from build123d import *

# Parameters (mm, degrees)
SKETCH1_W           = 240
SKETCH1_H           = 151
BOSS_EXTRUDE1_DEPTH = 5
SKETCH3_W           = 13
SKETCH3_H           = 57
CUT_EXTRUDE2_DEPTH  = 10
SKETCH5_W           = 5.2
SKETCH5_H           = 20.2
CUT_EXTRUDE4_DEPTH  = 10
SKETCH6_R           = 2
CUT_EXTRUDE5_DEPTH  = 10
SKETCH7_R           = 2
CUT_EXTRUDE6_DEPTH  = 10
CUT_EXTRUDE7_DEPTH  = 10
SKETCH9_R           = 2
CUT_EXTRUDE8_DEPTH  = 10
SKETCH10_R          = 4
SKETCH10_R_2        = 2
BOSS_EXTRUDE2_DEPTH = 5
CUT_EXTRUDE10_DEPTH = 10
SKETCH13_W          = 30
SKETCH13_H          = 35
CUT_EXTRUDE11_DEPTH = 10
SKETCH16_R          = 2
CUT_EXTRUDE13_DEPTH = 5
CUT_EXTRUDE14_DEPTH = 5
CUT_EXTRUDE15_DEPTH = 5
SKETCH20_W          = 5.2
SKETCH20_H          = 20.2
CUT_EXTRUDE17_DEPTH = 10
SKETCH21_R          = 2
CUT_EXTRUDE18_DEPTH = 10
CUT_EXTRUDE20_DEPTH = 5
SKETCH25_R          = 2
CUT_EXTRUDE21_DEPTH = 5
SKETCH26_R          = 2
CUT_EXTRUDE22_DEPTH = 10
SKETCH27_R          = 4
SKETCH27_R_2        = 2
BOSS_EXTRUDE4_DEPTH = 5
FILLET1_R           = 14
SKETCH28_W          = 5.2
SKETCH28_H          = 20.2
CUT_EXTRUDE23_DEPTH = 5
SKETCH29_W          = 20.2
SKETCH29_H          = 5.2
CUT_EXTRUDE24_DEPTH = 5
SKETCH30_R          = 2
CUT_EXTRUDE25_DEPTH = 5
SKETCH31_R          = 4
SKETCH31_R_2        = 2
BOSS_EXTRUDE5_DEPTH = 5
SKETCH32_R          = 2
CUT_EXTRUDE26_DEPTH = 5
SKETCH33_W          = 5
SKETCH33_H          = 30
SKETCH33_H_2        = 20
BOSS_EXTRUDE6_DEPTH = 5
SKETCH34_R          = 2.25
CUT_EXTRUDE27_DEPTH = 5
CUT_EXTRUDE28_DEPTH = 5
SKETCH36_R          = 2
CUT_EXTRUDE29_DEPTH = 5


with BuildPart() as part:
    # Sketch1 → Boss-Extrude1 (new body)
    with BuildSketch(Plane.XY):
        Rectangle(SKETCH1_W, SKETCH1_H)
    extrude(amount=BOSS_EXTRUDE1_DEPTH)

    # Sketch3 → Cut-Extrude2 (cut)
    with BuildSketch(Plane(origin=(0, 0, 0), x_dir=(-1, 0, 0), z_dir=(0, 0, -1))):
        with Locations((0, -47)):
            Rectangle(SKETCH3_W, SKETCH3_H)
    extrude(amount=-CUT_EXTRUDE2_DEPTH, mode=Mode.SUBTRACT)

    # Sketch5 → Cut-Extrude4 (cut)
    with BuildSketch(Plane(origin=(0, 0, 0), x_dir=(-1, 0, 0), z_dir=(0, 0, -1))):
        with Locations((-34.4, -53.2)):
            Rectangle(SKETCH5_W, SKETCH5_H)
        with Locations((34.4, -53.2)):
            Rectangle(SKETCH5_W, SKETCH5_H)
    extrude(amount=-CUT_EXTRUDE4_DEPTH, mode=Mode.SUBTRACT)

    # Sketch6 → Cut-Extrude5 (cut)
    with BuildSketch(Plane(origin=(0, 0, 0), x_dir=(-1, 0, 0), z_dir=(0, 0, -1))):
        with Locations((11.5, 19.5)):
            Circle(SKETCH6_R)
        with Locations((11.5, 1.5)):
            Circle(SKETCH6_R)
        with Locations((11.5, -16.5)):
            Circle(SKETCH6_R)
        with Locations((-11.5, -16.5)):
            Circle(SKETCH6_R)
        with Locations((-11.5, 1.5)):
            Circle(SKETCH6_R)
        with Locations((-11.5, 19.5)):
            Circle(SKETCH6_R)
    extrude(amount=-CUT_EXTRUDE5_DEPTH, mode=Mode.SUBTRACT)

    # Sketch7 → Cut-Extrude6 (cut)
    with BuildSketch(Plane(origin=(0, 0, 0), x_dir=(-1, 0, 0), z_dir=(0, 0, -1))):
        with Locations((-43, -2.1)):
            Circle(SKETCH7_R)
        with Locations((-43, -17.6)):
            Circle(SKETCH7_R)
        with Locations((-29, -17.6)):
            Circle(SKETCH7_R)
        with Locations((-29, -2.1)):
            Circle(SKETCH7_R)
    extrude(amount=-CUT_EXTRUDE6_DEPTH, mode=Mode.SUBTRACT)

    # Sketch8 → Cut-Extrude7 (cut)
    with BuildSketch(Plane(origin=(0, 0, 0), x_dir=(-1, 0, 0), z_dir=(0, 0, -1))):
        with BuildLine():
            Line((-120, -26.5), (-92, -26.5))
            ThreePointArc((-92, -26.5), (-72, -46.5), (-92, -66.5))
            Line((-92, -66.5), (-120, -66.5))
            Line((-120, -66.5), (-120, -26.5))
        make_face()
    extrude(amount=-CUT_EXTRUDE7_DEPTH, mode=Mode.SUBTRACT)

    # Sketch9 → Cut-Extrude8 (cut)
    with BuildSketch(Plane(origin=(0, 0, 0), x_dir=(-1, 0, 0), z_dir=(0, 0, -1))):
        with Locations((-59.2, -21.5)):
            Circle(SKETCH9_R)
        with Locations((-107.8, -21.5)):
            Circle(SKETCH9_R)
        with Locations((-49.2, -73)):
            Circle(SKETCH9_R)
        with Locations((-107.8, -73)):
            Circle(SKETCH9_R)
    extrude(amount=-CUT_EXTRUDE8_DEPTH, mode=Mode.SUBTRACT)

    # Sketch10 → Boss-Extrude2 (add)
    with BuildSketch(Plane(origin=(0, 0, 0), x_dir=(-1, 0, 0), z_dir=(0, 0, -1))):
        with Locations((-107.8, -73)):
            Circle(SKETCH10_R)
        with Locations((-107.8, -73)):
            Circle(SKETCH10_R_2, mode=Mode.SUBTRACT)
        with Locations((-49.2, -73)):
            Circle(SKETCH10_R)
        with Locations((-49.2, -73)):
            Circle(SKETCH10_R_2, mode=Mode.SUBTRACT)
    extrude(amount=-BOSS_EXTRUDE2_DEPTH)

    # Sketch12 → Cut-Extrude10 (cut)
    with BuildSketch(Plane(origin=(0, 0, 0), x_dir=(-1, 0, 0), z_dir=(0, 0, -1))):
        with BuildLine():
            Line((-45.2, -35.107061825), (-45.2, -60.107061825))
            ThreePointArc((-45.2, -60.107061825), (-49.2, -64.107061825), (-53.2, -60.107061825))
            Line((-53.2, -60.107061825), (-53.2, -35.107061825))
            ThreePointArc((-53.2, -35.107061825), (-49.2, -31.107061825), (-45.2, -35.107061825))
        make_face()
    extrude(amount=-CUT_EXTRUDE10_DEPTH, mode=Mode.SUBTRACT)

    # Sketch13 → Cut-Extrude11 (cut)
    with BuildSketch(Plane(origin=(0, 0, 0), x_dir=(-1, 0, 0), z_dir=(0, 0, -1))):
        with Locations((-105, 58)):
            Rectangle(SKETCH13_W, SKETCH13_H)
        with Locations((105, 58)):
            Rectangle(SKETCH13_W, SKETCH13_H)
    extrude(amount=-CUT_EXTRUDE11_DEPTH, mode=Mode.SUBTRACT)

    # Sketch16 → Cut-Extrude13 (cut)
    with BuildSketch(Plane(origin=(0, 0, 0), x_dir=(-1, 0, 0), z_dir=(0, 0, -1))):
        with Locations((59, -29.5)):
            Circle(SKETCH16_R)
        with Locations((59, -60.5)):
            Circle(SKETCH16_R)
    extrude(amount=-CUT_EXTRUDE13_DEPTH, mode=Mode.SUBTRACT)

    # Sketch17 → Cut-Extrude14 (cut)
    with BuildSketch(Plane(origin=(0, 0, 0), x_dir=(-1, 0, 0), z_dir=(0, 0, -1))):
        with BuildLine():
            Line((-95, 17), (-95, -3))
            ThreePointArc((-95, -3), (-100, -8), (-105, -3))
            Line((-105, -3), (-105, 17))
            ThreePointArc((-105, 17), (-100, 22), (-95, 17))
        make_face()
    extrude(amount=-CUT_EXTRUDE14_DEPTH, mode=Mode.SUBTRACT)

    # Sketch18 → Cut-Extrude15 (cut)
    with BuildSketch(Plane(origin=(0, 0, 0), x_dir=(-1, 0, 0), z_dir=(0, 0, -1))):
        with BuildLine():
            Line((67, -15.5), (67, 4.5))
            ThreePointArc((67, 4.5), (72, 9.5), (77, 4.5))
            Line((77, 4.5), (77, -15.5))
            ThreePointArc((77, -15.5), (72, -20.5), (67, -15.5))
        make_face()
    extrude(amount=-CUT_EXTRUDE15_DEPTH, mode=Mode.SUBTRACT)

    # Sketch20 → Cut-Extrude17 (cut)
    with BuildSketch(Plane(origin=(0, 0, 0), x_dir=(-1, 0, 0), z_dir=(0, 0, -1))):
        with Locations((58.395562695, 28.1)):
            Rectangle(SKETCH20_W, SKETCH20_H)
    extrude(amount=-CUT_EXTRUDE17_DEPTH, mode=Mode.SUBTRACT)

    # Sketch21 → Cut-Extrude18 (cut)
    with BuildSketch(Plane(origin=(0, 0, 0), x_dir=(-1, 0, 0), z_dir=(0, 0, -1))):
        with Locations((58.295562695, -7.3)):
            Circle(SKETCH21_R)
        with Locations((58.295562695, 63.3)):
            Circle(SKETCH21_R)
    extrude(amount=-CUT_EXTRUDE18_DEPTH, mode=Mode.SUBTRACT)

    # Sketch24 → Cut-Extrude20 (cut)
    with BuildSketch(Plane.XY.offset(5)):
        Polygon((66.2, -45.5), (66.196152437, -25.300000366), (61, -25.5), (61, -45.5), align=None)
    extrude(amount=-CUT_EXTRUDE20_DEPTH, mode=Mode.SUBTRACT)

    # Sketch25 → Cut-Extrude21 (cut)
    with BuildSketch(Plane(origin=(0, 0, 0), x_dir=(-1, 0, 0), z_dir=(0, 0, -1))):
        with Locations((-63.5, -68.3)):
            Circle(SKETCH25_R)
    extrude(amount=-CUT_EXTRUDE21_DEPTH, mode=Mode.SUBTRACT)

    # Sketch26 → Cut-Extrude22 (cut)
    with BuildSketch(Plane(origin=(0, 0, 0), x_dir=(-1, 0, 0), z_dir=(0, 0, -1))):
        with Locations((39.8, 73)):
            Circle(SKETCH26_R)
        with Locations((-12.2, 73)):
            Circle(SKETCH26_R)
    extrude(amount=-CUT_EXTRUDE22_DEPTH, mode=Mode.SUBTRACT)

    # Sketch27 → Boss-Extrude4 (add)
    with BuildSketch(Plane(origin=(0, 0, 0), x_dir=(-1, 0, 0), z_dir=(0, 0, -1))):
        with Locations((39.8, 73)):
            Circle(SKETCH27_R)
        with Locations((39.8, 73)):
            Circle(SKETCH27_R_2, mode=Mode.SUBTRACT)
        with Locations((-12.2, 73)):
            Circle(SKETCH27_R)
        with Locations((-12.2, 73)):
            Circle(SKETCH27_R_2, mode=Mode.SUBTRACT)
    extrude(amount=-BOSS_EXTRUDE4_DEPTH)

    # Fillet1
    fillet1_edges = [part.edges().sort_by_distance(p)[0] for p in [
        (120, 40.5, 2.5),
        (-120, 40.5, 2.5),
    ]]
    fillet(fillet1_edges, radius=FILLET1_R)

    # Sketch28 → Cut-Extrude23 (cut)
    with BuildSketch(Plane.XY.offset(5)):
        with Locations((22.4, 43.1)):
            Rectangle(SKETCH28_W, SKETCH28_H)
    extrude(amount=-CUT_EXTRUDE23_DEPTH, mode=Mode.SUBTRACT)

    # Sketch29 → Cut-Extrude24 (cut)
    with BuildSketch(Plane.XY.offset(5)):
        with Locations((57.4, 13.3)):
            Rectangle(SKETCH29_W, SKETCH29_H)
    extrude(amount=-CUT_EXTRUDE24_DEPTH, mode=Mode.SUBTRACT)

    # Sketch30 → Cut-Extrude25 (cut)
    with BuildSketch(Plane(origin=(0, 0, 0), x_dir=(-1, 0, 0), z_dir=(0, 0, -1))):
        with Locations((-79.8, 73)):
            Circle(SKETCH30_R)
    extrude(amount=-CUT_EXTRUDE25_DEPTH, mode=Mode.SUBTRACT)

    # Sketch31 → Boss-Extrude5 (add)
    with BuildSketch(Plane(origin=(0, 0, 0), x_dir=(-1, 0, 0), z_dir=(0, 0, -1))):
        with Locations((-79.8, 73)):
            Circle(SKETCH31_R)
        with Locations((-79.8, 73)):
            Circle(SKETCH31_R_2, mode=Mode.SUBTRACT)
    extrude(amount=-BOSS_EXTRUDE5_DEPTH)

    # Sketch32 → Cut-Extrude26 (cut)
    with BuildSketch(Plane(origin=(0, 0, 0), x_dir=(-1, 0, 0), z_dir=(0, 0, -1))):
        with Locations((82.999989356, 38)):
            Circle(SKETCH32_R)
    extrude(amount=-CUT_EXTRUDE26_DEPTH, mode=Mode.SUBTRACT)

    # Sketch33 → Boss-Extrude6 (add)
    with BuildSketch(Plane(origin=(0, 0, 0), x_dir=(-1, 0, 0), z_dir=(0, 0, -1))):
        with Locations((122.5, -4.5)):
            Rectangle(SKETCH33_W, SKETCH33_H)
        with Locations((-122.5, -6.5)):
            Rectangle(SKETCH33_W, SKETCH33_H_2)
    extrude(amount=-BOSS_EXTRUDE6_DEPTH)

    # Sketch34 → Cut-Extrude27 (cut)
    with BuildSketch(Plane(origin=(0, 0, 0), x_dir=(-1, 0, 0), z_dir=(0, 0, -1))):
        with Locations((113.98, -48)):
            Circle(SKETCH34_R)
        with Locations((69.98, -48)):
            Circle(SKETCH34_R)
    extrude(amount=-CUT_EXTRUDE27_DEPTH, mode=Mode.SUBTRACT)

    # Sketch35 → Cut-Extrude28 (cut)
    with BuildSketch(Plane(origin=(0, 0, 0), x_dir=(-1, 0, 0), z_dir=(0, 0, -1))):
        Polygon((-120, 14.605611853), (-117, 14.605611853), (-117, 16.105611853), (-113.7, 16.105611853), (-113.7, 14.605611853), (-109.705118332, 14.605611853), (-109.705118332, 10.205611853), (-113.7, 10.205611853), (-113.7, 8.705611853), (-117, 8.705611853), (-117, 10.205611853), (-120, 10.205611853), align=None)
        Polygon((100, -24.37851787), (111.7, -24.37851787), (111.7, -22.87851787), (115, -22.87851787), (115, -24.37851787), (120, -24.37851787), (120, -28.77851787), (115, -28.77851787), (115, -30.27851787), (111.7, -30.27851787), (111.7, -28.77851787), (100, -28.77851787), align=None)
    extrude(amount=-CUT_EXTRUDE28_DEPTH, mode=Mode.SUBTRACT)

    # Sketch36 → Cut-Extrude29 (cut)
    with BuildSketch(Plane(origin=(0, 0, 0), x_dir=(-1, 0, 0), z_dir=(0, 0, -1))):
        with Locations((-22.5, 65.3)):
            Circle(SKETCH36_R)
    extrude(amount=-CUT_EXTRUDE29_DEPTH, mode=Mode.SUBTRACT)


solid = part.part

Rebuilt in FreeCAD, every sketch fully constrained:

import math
import FreeCAD as App
import Part
import Sketcher

V = App.Vector
Q = App.Units.Quantity


def edges_at(feature, points):
    """Names of the edges that pass closest to the given points."""
    edges = feature.Shape.Edges
    near = lambda p: min(range(len(edges)), key=lambda i: edges[i].distToShape(Part.Vertex(*p))[0])
    return sorted({f"Edge{near(p) + 1}" for p in points})


def add_polygon(sketch, points):
    """Adds a closed chain of lines whose ends are joined by coincident constraints."""
    first, n = sketch.GeometryCount, len(points)
    for a, b in zip(points, points[1:] + points[:1]):
        sketch.addGeometry(Part.LineSegment(App.Vector(*a, 0), App.Vector(*b, 0)), False)
    for i in range(n):
        sketch.addConstraint(Sketcher.Constraint("Coincident", first + i, 2, first + (i + 1) % n, 1))

doc = App.newDocument("Part")
body = doc.addObject("PartDesign::Body", "Body")

sketch1 = body.newObject("Sketcher::SketchObject", "Sketch")
sketch1.AttachmentSupport = (doc.getObject("XY_Plane"), [""])
sketch1.MapMode = "FlatFace"
add_polygon(sketch1, [(-120, 76), (-120, -76), (120, -76), (120, 76)])
sketch1.addConstraint(Sketcher.Constraint("Vertical", 0))
sketch1.addConstraint(Sketcher.Constraint("Horizontal", 1))
sketch1.addConstraint(Sketcher.Constraint("Vertical", 2))
sketch1.addConstraint(Sketcher.Constraint("Horizontal", 3))
sketch1.addConstraint(Sketcher.Constraint("Symmetric", 0, 2, 2, 2, -1, 1))
sketch1.addConstraint(Sketcher.Constraint("DistanceX", 1, 1, 1, 2, Q("240 mm")))
sketch1.addConstraint(Sketcher.Constraint("DistanceY", 0, 2, 0, 1, Q("151 mm")))
pad1 = body.newObject("PartDesign::Pad", "Pad")
pad1.Profile = sketch1
pad1.Length = 5

sketch2 = body.newObject("Sketcher::SketchObject", "Sketch001")
sketch2.AttachmentSupport = (doc.getObject("XY_Plane"), [""])
sketch2.MapMode = "FlatFace"
add_polygon(sketch2, [(6, -18), (6, -76), (-6, -76), (-6, -18)])
sketch2.addConstraint(Sketcher.Constraint("Vertical", 0))
sketch2.addConstraint(Sketcher.Constraint("Horizontal", 1))
sketch2.addConstraint(Sketcher.Constraint("Vertical", 2))
sketch2.addConstraint(Sketcher.Constraint("Horizontal", 3))
sketch2.addConstraint(Sketcher.Constraint("DistanceX", 1, 2, 1, 1, Q("13 mm")))
sketch2.addConstraint(Sketcher.Constraint("DistanceY", 0, 2, 0, 1, Q("57 mm")))
sketch2.addConstraint(Sketcher.Constraint("DistanceX", -1, 1, 0, 2, Q("6.5 mm")))
sketch2.addConstraint(Sketcher.Constraint("DistanceY", 0, 2, -1, 1, Q("75.5 mm")))
pocket1 = body.newObject("PartDesign::Pocket", "Pocket")
pocket1.Profile = sketch2
pocket1.Length = 10
pocket1.Reversed = True

sketch3 = body.newObject("Sketcher::SketchObject", "Sketch002")
sketch3.AttachmentSupport = (doc.getObject("XY_Plane"), [""])
sketch3.MapMode = "FlatFace"
add_polygon(sketch3, [(37, -43), (37, -63), (32, -63), (32, -43)])
add_polygon(sketch3, [(-32, -43), (-32, -63), (-37, -63), (-37, -43)])
sketch3.addConstraint(Sketcher.Constraint("Vertical", 0))
sketch3.addConstraint(Sketcher.Constraint("Horizontal", 1))
sketch3.addConstraint(Sketcher.Constraint("Vertical", 2))
sketch3.addConstraint(Sketcher.Constraint("Horizontal", 3))
sketch3.addConstraint(Sketcher.Constraint("Vertical", 4))
sketch3.addConstraint(Sketcher.Constraint("Horizontal", 5))
sketch3.addConstraint(Sketcher.Constraint("Vertical", 6))
sketch3.addConstraint(Sketcher.Constraint("Horizontal", 7))
sketch3.addConstraint(Sketcher.Constraint("Symmetric", 1, 2, 4, 2, -2))
sketch3.addConstraint(Sketcher.Constraint("Symmetric", 3, 2, 6, 2, -2))
sketch3.addConstraint(Sketcher.Constraint("DistanceX", 1, 2, 1, 1, Q("5.2 mm")))
sketch3.addConstraint(Sketcher.Constraint("DistanceY", 0, 2, 0, 1, Q("20.2 mm")))
sketch3.addConstraint(Sketcher.Constraint("DistanceX", -1, 1, 0, 2, Q("37 mm")))
sketch3.addConstraint(Sketcher.Constraint("DistanceY", 0, 2, -1, 1, Q("63.3 mm")))
pocket2 = body.newObject("PartDesign::Pocket", "Pocket001")
pocket2.Profile = sketch3
pocket2.Length = 10
pocket2.Reversed = True

sketch4 = body.newObject("Sketcher::SketchObject", "Sketch003")
sketch4.AttachmentSupport = (doc.getObject("XY_Plane"), [""])
sketch4.MapMode = "FlatFace"
sketch4.addGeometry(Part.Circle(V(-11.5, 19.5, 0), V(0, 0, 1), 2), False)
sketch4.addGeometry(Part.Circle(V(-11.5, 1.5, 0), V(0, 0, 1), 2), False)
sketch4.addGeometry(Part.Circle(V(-11.5, -16.5, 0), V(0, 0, 1), 2), False)
sketch4.addGeometry(Part.Circle(V(11.5, -16.5, 0), V(0, 0, 1), 2), False)
sketch4.addGeometry(Part.Circle(V(11.5, 1.5, 0), V(0, 0, 1), 2), False)
sketch4.addGeometry(Part.Circle(V(11.5, 19.5, 0), V(0, 0, 1), 2), False)
sketch4.addConstraint(Sketcher.Constraint("Equal", 0, 1))
sketch4.addConstraint(Sketcher.Constraint("Equal", 1, 2))
sketch4.addConstraint(Sketcher.Constraint("Equal", 2, 3))
sketch4.addConstraint(Sketcher.Constraint("Equal", 3, 4))
sketch4.addConstraint(Sketcher.Constraint("Equal", 4, 5))
sketch4.addConstraint(Sketcher.Constraint("Symmetric", 2, 3, 3, 3, -2))
sketch4.addConstraint(Sketcher.Constraint("Symmetric", 1, 3, 4, 3, -2))
sketch4.addConstraint(Sketcher.Constraint("Symmetric", 0, 3, 5, 3, -2))
sketch4.addConstraint(Sketcher.Constraint("Vertical", 0, 3, 1, 3))
sketch4.addConstraint(Sketcher.Constraint("Vertical", 1, 3, 2, 3))
sketch4.addConstraint(Sketcher.Constraint("Diameter", 0, Q("4 mm")))
sketch4.addConstraint(Sketcher.Constraint("DistanceY", 1, 3, 0, 3, Q("18 mm")))
sketch4.addConstraint(Sketcher.Constraint("DistanceY", 2, 3, 1, 3, Q("18 mm")))
sketch4.addConstraint(Sketcher.Constraint("DistanceX", 2, 3, 3, 3, Q("23 mm")))
sketch4.addConstraint(Sketcher.Constraint("DistanceY", -1, 1, 0, 3, Q("19.5 mm")))
pocket3 = body.newObject("PartDesign::Pocket", "Pocket002")
pocket3.Profile = sketch4
pocket3.Length = 10
pocket3.Reversed = True

sketch5 = body.newObject("Sketcher::SketchObject", "Sketch004")
sketch5.AttachmentSupport = (doc.getObject("XY_Plane"), [""])
sketch5.MapMode = "FlatFace"
sketch5.addGeometry(Part.Circle(V(43, -2.1, 0), V(0, 0, 1), 2), False)
sketch5.addGeometry(Part.Circle(V(43, -17.6, 0), V(0, 0, 1), 2), False)
sketch5.addGeometry(Part.Circle(V(29, -17.6, 0), V(0, 0, 1), 2), False)
sketch5.addGeometry(Part.Circle(V(29, -2.1, 0), V(0, 0, 1), 2), False)
sketch5.addConstraint(Sketcher.Constraint("Equal", 0, 1))
sketch5.addConstraint(Sketcher.Constraint("Equal", 1, 2))
sketch5.addConstraint(Sketcher.Constraint("Equal", 2, 3))
sketch5.addConstraint(Sketcher.Constraint("Horizontal", 1, 3, 2, 3))
sketch5.addConstraint(Sketcher.Constraint("Horizontal", 0, 3, 3, 3))
sketch5.addConstraint(Sketcher.Constraint("Vertical", 0, 3, 1, 3))
sketch5.addConstraint(Sketcher.Constraint("Vertical", 2, 3, 3, 3))
sketch5.addConstraint(Sketcher.Constraint("Diameter", 0, Q("4 mm")))
sketch5.addConstraint(Sketcher.Constraint("DistanceX", -1, 1, 0, 3, Q("43 mm")))
sketch5.addConstraint(Sketcher.Constraint("DistanceX", -1, 1, 2, 3, Q("29 mm")))
sketch5.addConstraint(Sketcher.Constraint("DistanceY", 0, 3, -1, 1, Q("2.1 mm")))
sketch5.addConstraint(Sketcher.Constraint("DistanceY", 1, 3, -1, 1, Q("17.6 mm")))
pocket4 = body.newObject("PartDesign::Pocket", "Pocket003")
pocket4.Profile = sketch5
pocket4.Length = 10
pocket4.Reversed = True

sketch6 = body.newObject("Sketcher::SketchObject", "Sketch005")
sketch6.AttachmentSupport = (doc.getObject("XY_Plane"), [""])
sketch6.MapMode = "FlatFace"
sketch6.addGeometry(Part.LineSegment(V(92, -26, 0), V(120, -26, 0)), False)
sketch6.addGeometry(Part.LineSegment(V(120, -26, 0), V(120, -66, 0)), False)
sketch6.addGeometry(Part.LineSegment(V(120, -66, 0), V(92, -66, 0)), False)
sketch6.addGeometry(Part.ArcOfCircle(Part.Circle(V(92, -46, 0), V(0, 0, 1), 20), math.radians(90), math.radians(270)), False)
sketch6.addConstraint(Sketcher.Constraint("Coincident", 0, 2, 1, 1))
sketch6.addConstraint(Sketcher.Constraint("Coincident", 1, 2, 2, 1))
sketch6.addConstraint(Sketcher.Constraint("Tangent", 2, 2, 3, 2))
sketch6.addConstraint(Sketcher.Constraint("Tangent", 3, 1, 0, 1))
sketch6.addConstraint(Sketcher.Constraint("Horizontal", 0))
sketch6.addConstraint(Sketcher.Constraint("Vertical", 1))
sketch6.addConstraint(Sketcher.Constraint("Horizontal", 2))
sketch6.addConstraint(Sketcher.Constraint("Radius", 3, Q("20 mm")))
sketch6.addConstraint(Sketcher.Constraint("DistanceX", 0, 1, 0, 2, Q("28 mm")))
sketch6.addConstraint(Sketcher.Constraint("DistanceX", -1, 1, 3, 3, Q("92 mm")))
sketch6.addConstraint(Sketcher.Constraint("DistanceY", 3, 3, -1, 1, Q("46.5 mm")))
pocket5 = body.newObject("PartDesign::Pocket", "Pocket004")
pocket5.Profile = sketch6
pocket5.Length = 10
pocket5.Reversed = True

sketch7 = body.newObject("Sketcher::SketchObject", "Sketch006")
sketch7.AttachmentSupport = (doc.getObject("XY_Plane"), [""])
sketch7.MapMode = "FlatFace"
sketch7.addGeometry(Part.Circle(V(59.2, -21.5, 0), V(0, 0, 1), 2), False)
sketch7.addGeometry(Part.Circle(V(107.8, -21.5, 0), V(0, 0, 1), 2), False)
sketch7.addGeometry(Part.Circle(V(49.2, -73, 0), V(0, 0, 1), 2), False)
sketch7.addGeometry(Part.Circle(V(107.8, -73, 0), V(0, 0, 1), 2), False)
sketch7.addConstraint(Sketcher.Constraint("Equal", 0, 1))
sketch7.addConstraint(Sketcher.Constraint("Equal", 1, 2))
sketch7.addConstraint(Sketcher.Constraint("Equal", 2, 3))
sketch7.addConstraint(Sketcher.Constraint("Horizontal", 0, 3, 1, 3))
sketch7.addConstraint(Sketcher.Constraint("Horizontal", 2, 3, 3, 3))
sketch7.addConstraint(Sketcher.Constraint("Vertical", 1, 3, 3, 3))
sketch7.addConstraint(Sketcher.Constraint("Diameter", 0, Q("4 mm")))
sketch7.addConstraint(Sketcher.Constraint("DistanceY", 2, 3, -1, 1, Q("73 mm")))
sketch7.addConstraint(Sketcher.Constraint("DistanceX", 2, 3, 0, 3, Q("10 mm")))
sketch7.addConstraint(Sketcher.Constraint("DistanceX", -1, 1, 0, 3, Q("59.2 mm")))
sketch7.addConstraint(Sketcher.Constraint("DistanceY", 0, 3, -1, 1, Q("21.5 mm")))
sketch7.addConstraint(Sketcher.Constraint("DistanceX", -1, 1, 1, 3, Q("107.8 mm")))
pocket6 = body.newObject("PartDesign::Pocket", "Pocket005")
pocket6.Profile = sketch7
pocket6.Length = 10
pocket6.Reversed = True

sketch8 = body.newObject("Sketcher::SketchObject", "Sketch007")
sketch8.AttachmentSupport = (doc.getObject("XY_Plane"), [""])
sketch8.MapMode = "FlatFace"
sketch8.addGeometry(Part.Circle(V(107.8, -73, 0), V(0, 0, 1), 4), False)
sketch8.addGeometry(Part.Circle(V(107.8, -73, 0), V(0, 0, 1), 2), False)
sketch8.addGeometry(Part.Circle(V(49.2, -73, 0), V(0, 0, 1), 4), False)
sketch8.addGeometry(Part.Circle(V(49.2, -73, 0), V(0, 0, 1), 2), False)
sketch8.addConstraint(Sketcher.Constraint("Coincident", 1, 3, 0, 3))
sketch8.addConstraint(Sketcher.Constraint("Coincident", 3, 3, 2, 3))
sketch8.addConstraint(Sketcher.Constraint("Equal", 0, 2))
sketch8.addConstraint(Sketcher.Constraint("Equal", 1, 3))
sketch8.addConstraint(Sketcher.Constraint("Horizontal", 1, 3, 2, 3))
sketch8.addConstraint(Sketcher.Constraint("Diameter", 0, Q("8 mm")))
sketch8.addConstraint(Sketcher.Constraint("Diameter", 1, Q("4 mm")))
sketch8.addConstraint(Sketcher.Constraint("DistanceY", 0, 3, -1, 1, Q("73 mm")))
sketch8.addConstraint(Sketcher.Constraint("DistanceX", -1, 1, 0, 3, Q("107.8 mm")))
sketch8.addConstraint(Sketcher.Constraint("DistanceX", -1, 1, 2, 3, Q("49.2 mm")))
pad2 = body.newObject("PartDesign::Pad", "Pad001")
pad2.Profile = sketch8
pad2.Length = 5

sketch9 = body.newObject("Sketcher::SketchObject", "Sketch008")
sketch9.AttachmentSupport = (doc.getObject("XY_Plane"), [""])
sketch9.MapMode = "FlatFace"
sketch9.addGeometry(Part.LineSegment(V(45.2, -60.1, 0), V(45.2, -35.1, 0)), False)
sketch9.addGeometry(Part.ArcOfCircle(Part.Circle(V(49.2, -35.1, 0), V(0, 0, 1), 4), math.radians(0), math.radians(180)), False)
sketch9.addGeometry(Part.LineSegment(V(53.2, -35.1, 0), V(53.2, -60.1, 0)), False)
sketch9.addGeometry(Part.ArcOfCircle(Part.Circle(V(49.2, -60.1, 0), V(0, 0, 1), 4), math.radians(180), math.radians(360)), False)
sketch9.addConstraint(Sketcher.Constraint("Tangent", 0, 2, 1, 2))
sketch9.addConstraint(Sketcher.Constraint("Tangent", 1, 1, 2, 1))
sketch9.addConstraint(Sketcher.Constraint("Tangent", 2, 2, 3, 2))
sketch9.addConstraint(Sketcher.Constraint("Tangent", 3, 1, 0, 1))
sketch9.addConstraint(Sketcher.Constraint("Vertical", 0))
sketch9.addConstraint(Sketcher.Constraint("Vertical", 2))
sketch9.addConstraint(Sketcher.Constraint("Radius", 1, Q("4 mm")))
sketch9.addConstraint(Sketcher.Constraint("DistanceY", 0, 1, 0, 2, Q("25 mm")))
sketch9.addConstraint(Sketcher.Constraint("DistanceX", -1, 1, 1, 3, Q("49.2 mm")))
sketch9.addConstraint(Sketcher.Constraint("DistanceY", 1, 3, -1, 1, Q("35.107062 mm")))
pocket7 = body.newObject("PartDesign::Pocket", "Pocket006")
pocket7.Profile = sketch9
pocket7.Length = 10
pocket7.Reversed = True

sketch10 = body.newObject("Sketcher::SketchObject", "Sketch009")
sketch10.AttachmentSupport = (doc.getObject("XY_Plane"), [""])
sketch10.MapMode = "FlatFace"
add_polygon(sketch10, [(120, 76), (120, 40), (90, 40), (90, 76)])
add_polygon(sketch10, [(-90, 76), (-90, 40), (-120, 40), (-120, 76)])
sketch10.addConstraint(Sketcher.Constraint("Vertical", 0))
sketch10.addConstraint(Sketcher.Constraint("Horizontal", 1))
sketch10.addConstraint(Sketcher.Constraint("Vertical", 2))
sketch10.addConstraint(Sketcher.Constraint("Horizontal", 3))
sketch10.addConstraint(Sketcher.Constraint("Vertical", 4))
sketch10.addConstraint(Sketcher.Constraint("Horizontal", 5))
sketch10.addConstraint(Sketcher.Constraint("Vertical", 6))
sketch10.addConstraint(Sketcher.Constraint("Horizontal", 7))
sketch10.addConstraint(Sketcher.Constraint("Symmetric", 1, 2, 4, 2, -2))
sketch10.addConstraint(Sketcher.Constraint("Symmetric", 3, 2, 6, 2, -2))
sketch10.addConstraint(Sketcher.Constraint("DistanceX", 1, 2, 1, 1, Q("30 mm")))
sketch10.addConstraint(Sketcher.Constraint("DistanceY", 0, 2, 0, 1, Q("35 mm")))
sketch10.addConstraint(Sketcher.Constraint("DistanceX", -1, 1, 0, 2, Q("120 mm")))
sketch10.addConstraint(Sketcher.Constraint("DistanceY", -1, 1, 0, 2, Q("40.5 mm")))
pocket8 = body.newObject("PartDesign::Pocket", "Pocket007")
pocket8.Profile = sketch10
pocket8.Length = 10
pocket8.Reversed = True

sketch11 = body.newObject("Sketcher::SketchObject", "Sketch010")
sketch11.AttachmentSupport = (doc.getObject("XY_Plane"), [""])
sketch11.MapMode = "FlatFace"
sketch11.addGeometry(Part.Circle(V(-59, -29.5, 0), V(0, 0, 1), 2), False)
sketch11.addGeometry(Part.Circle(V(-59, -60.5, 0), V(0, 0, 1), 2), False)
sketch11.addConstraint(Sketcher.Constraint("Equal", 0, 1))
sketch11.addConstraint(Sketcher.Constraint("Vertical", 0, 3, 1, 3))
sketch11.addConstraint(Sketcher.Constraint("Diameter", 0, Q("4 mm")))
sketch11.addConstraint(Sketcher.Constraint("DistanceX", 0, 3, -1, 1, Q("59 mm")))
sketch11.addConstraint(Sketcher.Constraint("DistanceY", 1, 3, 0, 3, Q("31 mm")))
sketch11.addConstraint(Sketcher.Constraint("DistanceY", 0, 3, -1, 1, Q("29.5 mm")))
pocket9 = body.newObject("PartDesign::Pocket", "Pocket008")
pocket9.Profile = sketch11
pocket9.Length = 5
pocket9.Reversed = True

sketch12 = body.newObject("Sketcher::SketchObject", "Sketch011")
sketch12.AttachmentSupport = (doc.getObject("XY_Plane"), [""])
sketch12.MapMode = "FlatFace"
sketch12.addGeometry(Part.LineSegment(V(95, -3, 0), V(95, 17, 0)), False)
sketch12.addGeometry(Part.ArcOfCircle(Part.Circle(V(100, 17, 0), V(0, 0, 1), 5), math.radians(0), math.radians(180)), False)
sketch12.addGeometry(Part.LineSegment(V(105, 17, 0), V(105, -3, 0)), False)
sketch12.addGeometry(Part.ArcOfCircle(Part.Circle(V(100, -3, 0), V(0, 0, 1), 5), math.radians(180), math.radians(360)), False)
sketch12.addConstraint(Sketcher.Constraint("Tangent", 0, 2, 1, 2))
sketch12.addConstraint(Sketcher.Constraint("Tangent", 1, 1, 2, 1))
sketch12.addConstraint(Sketcher.Constraint("Tangent", 2, 2, 3, 2))
sketch12.addConstraint(Sketcher.Constraint("Tangent", 3, 1, 0, 1))
sketch12.addConstraint(Sketcher.Constraint("Vertical", 0))
sketch12.addConstraint(Sketcher.Constraint("Vertical", 2))
sketch12.addConstraint(Sketcher.Constraint("Radius", 1, Q("5 mm")))
sketch12.addConstraint(Sketcher.Constraint("DistanceY", 0, 1, 0, 2, Q("20 mm")))
sketch12.addConstraint(Sketcher.Constraint("DistanceX", -1, 1, 1, 3, Q("100 mm")))
sketch12.addConstraint(Sketcher.Constraint("DistanceY", -1, 1, 1, 3, Q("17 mm")))
pocket10 = body.newObject("PartDesign::Pocket", "Pocket009")
pocket10.Profile = sketch12
pocket10.Length = 5
pocket10.Reversed = True

sketch13 = body.newObject("Sketcher::SketchObject", "Sketch012")
sketch13.AttachmentSupport = (doc.getObject("XY_Plane"), [""])
sketch13.MapMode = "FlatFace"
sketch13.addGeometry(Part.LineSegment(V(-67, 4, 0), V(-67, -16, 0)), False)
sketch13.addGeometry(Part.ArcOfCircle(Part.Circle(V(-72, -16, 0), V(0, 0, 1), 5), math.radians(180), math.radians(360)), False)
sketch13.addGeometry(Part.LineSegment(V(-77, -16, 0), V(-77, 4, 0)), False)
sketch13.addGeometry(Part.ArcOfCircle(Part.Circle(V(-72, 4, 0), V(0, 0, 1), 5), math.radians(0), math.radians(180)), False)
sketch13.addConstraint(Sketcher.Constraint("Tangent", 0, 2, 1, 2))
sketch13.addConstraint(Sketcher.Constraint("Tangent", 1, 1, 2, 1))
sketch13.addConstraint(Sketcher.Constraint("Tangent", 2, 2, 3, 2))
sketch13.addConstraint(Sketcher.Constraint("Tangent", 3, 1, 0, 1))
sketch13.addConstraint(Sketcher.Constraint("Vertical", 0))
sketch13.addConstraint(Sketcher.Constraint("Vertical", 2))
sketch13.addConstraint(Sketcher.Constraint("Radius", 1, Q("5 mm")))
sketch13.addConstraint(Sketcher.Constraint("DistanceY", 0, 2, 0, 1, Q("20 mm")))
sketch13.addConstraint(Sketcher.Constraint("DistanceX", 1, 3, -1, 1, Q("72 mm")))
sketch13.addConstraint(Sketcher.Constraint("DistanceY", 1, 3, -1, 1, Q("15.5 mm")))
pocket11 = body.newObject("PartDesign::Pocket", "Pocket010")
pocket11.Profile = sketch13
pocket11.Length = 5
pocket11.Reversed = True

sketch14 = body.newObject("Sketcher::SketchObject", "Sketch013")
sketch14.AttachmentSupport = (doc.getObject("XY_Plane"), [""])
sketch14.MapMode = "FlatFace"
add_polygon(sketch14, [(-56, 38), (-56, 18), (-61, 18), (-61, 38)])
sketch14.addConstraint(Sketcher.Constraint("Vertical", 0))
sketch14.addConstraint(Sketcher.Constraint("Horizontal", 1))
sketch14.addConstraint(Sketcher.Constraint("Vertical", 2))
sketch14.addConstraint(Sketcher.Constraint("Horizontal", 3))
sketch14.addConstraint(Sketcher.Constraint("DistanceX", 1, 2, 1, 1, Q("5.2 mm")))
sketch14.addConstraint(Sketcher.Constraint("DistanceY", 0, 2, 0, 1, Q("20.2 mm")))
sketch14.addConstraint(Sketcher.Constraint("DistanceY", -1, 1, 0, 2, Q("18 mm")))
sketch14.addConstraint(Sketcher.Constraint("DistanceX", 0, 2, -1, 1, Q("55.795563 mm")))
pocket12 = body.newObject("PartDesign::Pocket", "Pocket011")
pocket12.Profile = sketch14
pocket12.Length = 10
pocket12.Reversed = True

sketch15 = body.newObject("Sketcher::SketchObject", "Sketch014")
sketch15.AttachmentSupport = (doc.getObject("XY_Plane"), [""])
sketch15.MapMode = "FlatFace"
sketch15.addGeometry(Part.Circle(V(-58.3, -7.3, 0), V(0, 0, 1), 2), False)
sketch15.addGeometry(Part.Circle(V(-58.3, 63.3, 0), V(0, 0, 1), 2), False)
sketch15.addConstraint(Sketcher.Constraint("Equal", 0, 1))
sketch15.addConstraint(Sketcher.Constraint("Vertical", 0, 3, 1, 3))
sketch15.addConstraint(Sketcher.Constraint("Diameter", 0, Q("4 mm")))
sketch15.addConstraint(Sketcher.Constraint("DistanceY", 0, 3, -1, 1, Q("7.3 mm")))
sketch15.addConstraint(Sketcher.Constraint("DistanceY", -1, 1, 1, 3, Q("63.3 mm")))
sketch15.addConstraint(Sketcher.Constraint("DistanceX", 0, 3, -1, 1, Q("58.295563 mm")))
pocket13 = body.newObject("PartDesign::Pocket", "Pocket012")
pocket13.Profile = sketch15
pocket13.Length = 10
pocket13.Reversed = True

sketch16 = body.newObject("Sketcher::SketchObject", "Sketch015")
sketch16.AttachmentSupport = (doc.getObject("XY_Plane"), [""])
sketch16.MapMode = "FlatFace"
sketch16.AttachmentOffset = App.Placement(V(0, 0, 5), App.Rotation())
add_polygon(sketch16, [(66, -46), (66, -25), (61, -26), (61, -46)])
sketch16.addConstraint(Sketcher.Constraint("Vertical", 2))
sketch16.addConstraint(Sketcher.Constraint("Horizontal", 3))
sketch16.addConstraint(Sketcher.Constraint("DistanceY", 2, 2, 2, 1, Q("20 mm")))
sketch16.addConstraint(Sketcher.Constraint("DistanceX", 3, 1, 3, 2, Q("5.2 mm")))
sketch16.addConstraint(Sketcher.Constraint("DistanceX", -1, 1, 1, 2, Q("61 mm")))
sketch16.addConstraint(Sketcher.Constraint("Distance", 0, Q("20.2 mm")))
sketch16.addConstraint(Sketcher.Constraint("Distance", 1, Q("5.2 mm")))
sketch16.addConstraint(Sketcher.Constraint("DistanceY", 0, 2, -1, 1, Q("25.3 mm")))
pocket14 = body.newObject("PartDesign::Pocket", "Pocket013")
pocket14.Profile = sketch16
pocket14.Length = 5

sketch17 = body.newObject("Sketcher::SketchObject", "Sketch016")
sketch17.AttachmentSupport = (doc.getObject("XY_Plane"), [""])
sketch17.MapMode = "FlatFace"
sketch17.addGeometry(Part.Circle(V(63.5, -68.3, 0), V(0, 0, 1), 2), False)
sketch17.addConstraint(Sketcher.Constraint("Diameter", 0, Q("4 mm")))
sketch17.addConstraint(Sketcher.Constraint("DistanceX", -1, 1, 0, 3, Q("63.5 mm")))
sketch17.addConstraint(Sketcher.Constraint("DistanceY", 0, 3, -1, 1, Q("68.3 mm")))
pocket15 = body.newObject("PartDesign::Pocket", "Pocket014")
pocket15.Profile = sketch17
pocket15.Length = 5
pocket15.Reversed = True

sketch18 = body.newObject("Sketcher::SketchObject", "Sketch017")
sketch18.AttachmentSupport = (doc.getObject("XY_Plane"), [""])
sketch18.MapMode = "FlatFace"
sketch18.addGeometry(Part.Circle(V(-39.8, 73, 0), V(0, 0, 1), 2), False)
sketch18.addGeometry(Part.Circle(V(12.2, 73, 0), V(0, 0, 1), 2), False)
sketch18.addConstraint(Sketcher.Constraint("Equal", 0, 1))
sketch18.addConstraint(Sketcher.Constraint("Horizontal", 0, 3, 1, 3))
sketch18.addConstraint(Sketcher.Constraint("Diameter", 0, Q("4 mm")))
sketch18.addConstraint(Sketcher.Constraint("DistanceY", -1, 1, 0, 3, Q("73 mm")))
sketch18.addConstraint(Sketcher.Constraint("DistanceX", 0, 3, 1, 3, Q("52 mm")))
sketch18.addConstraint(Sketcher.Constraint("DistanceX", 0, 3, -1, 1, Q("39.8 mm")))
pocket16 = body.newObject("PartDesign::Pocket", "Pocket015")
pocket16.Profile = sketch18
pocket16.Length = 10
pocket16.Reversed = True

sketch19 = body.newObject("Sketcher::SketchObject", "Sketch018")
sketch19.AttachmentSupport = (doc.getObject("XY_Plane"), [""])
sketch19.MapMode = "FlatFace"
sketch19.addGeometry(Part.Circle(V(-39.8, 73, 0), V(0, 0, 1), 4), False)
sketch19.addGeometry(Part.Circle(V(-39.8, 73, 0), V(0, 0, 1), 2), False)
sketch19.addGeometry(Part.Circle(V(12.2, 73, 0), V(0, 0, 1), 4), False)
sketch19.addGeometry(Part.Circle(V(12.2, 73, 0), V(0, 0, 1), 2), False)
sketch19.addConstraint(Sketcher.Constraint("Coincident", 1, 3, 0, 3))
sketch19.addConstraint(Sketcher.Constraint("Coincident", 3, 3, 2, 3))
sketch19.addConstraint(Sketcher.Constraint("Equal", 0, 2))
sketch19.addConstraint(Sketcher.Constraint("Equal", 1, 3))
sketch19.addConstraint(Sketcher.Constraint("Horizontal", 1, 3, 2, 3))
sketch19.addConstraint(Sketcher.Constraint("Diameter", 0, Q("8 mm")))
sketch19.addConstraint(Sketcher.Constraint("Diameter", 1, Q("4 mm")))
sketch19.addConstraint(Sketcher.Constraint("DistanceY", -1, 1, 0, 3, Q("73 mm")))
sketch19.addConstraint(Sketcher.Constraint("DistanceX", 0, 3, 2, 3, Q("52 mm")))
sketch19.addConstraint(Sketcher.Constraint("DistanceX", 0, 3, -1, 1, Q("39.8 mm")))
pad3 = body.newObject("PartDesign::Pad", "Pad002")
pad3.Profile = sketch19
pad3.Length = 5
doc.recompute()

fillet = body.newObject("PartDesign::Fillet", "Fillet")
fillet.Base = (pad3, edges_at(pad3, [(120, 40.5, 2.5), (-120, 40.5, 2.5)]))
fillet.Radius = 14

sketch20 = body.newObject("Sketcher::SketchObject", "Sketch019")
sketch20.AttachmentSupport = (doc.getObject("XY_Plane"), [""])
sketch20.MapMode = "FlatFace"
sketch20.AttachmentOffset = App.Placement(V(0, 0, 5), App.Rotation())
add_polygon(sketch20, [(20, 53), (20, 33), (25, 33), (25, 53)])
sketch20.addConstraint(Sketcher.Constraint("Vertical", 0))
sketch20.addConstraint(Sketcher.Constraint("Horizontal", 1))
sketch20.addConstraint(Sketcher.Constraint("Vertical", 2))
sketch20.addConstraint(Sketcher.Constraint("Horizontal", 3))
sketch20.addConstraint(Sketcher.Constraint("DistanceX", 1, 1, 1, 2, Q("5.2 mm")))
sketch20.addConstraint(Sketcher.Constraint("DistanceY", 0, 2, 0, 1, Q("20.2 mm")))
sketch20.addConstraint(Sketcher.Constraint("DistanceY", -1, 1, 0, 2, Q("33 mm")))
sketch20.addConstraint(Sketcher.Constraint("DistanceX", -1, 1, 1, 2, Q("25 mm")))
pocket17 = body.newObject("PartDesign::Pocket", "Pocket016")
pocket17.Profile = sketch20
pocket17.Length = 5

sketch21 = body.newObject("Sketcher::SketchObject", "Sketch020")
sketch21.AttachmentSupport = (doc.getObject("XY_Plane"), [""])
sketch21.MapMode = "FlatFace"
sketch21.AttachmentOffset = App.Placement(V(0, 0, 5), App.Rotation())
add_polygon(sketch21, [(47, 16), (47, 11), (68, 11), (68, 16)])
sketch21.addConstraint(Sketcher.Constraint("Vertical", 0))
sketch21.addConstraint(Sketcher.Constraint("Horizontal", 1))
sketch21.addConstraint(Sketcher.Constraint("Vertical", 2))
sketch21.addConstraint(Sketcher.Constraint("Horizontal", 3))
sketch21.addConstraint(Sketcher.Constraint("DistanceX", 1, 1, 1, 2, Q("20.2 mm")))
sketch21.addConstraint(Sketcher.Constraint("DistanceY", 0, 2, 0, 1, Q("5.2 mm")))
sketch21.addConstraint(Sketcher.Constraint("DistanceX", -1, 1, 0, 2, Q("47.3 mm")))
sketch21.addConstraint(Sketcher.Constraint("DistanceY", -1, 1, 0, 2, Q("10.7 mm")))
pocket18 = body.newObject("PartDesign::Pocket", "Pocket017")
pocket18.Profile = sketch21
pocket18.Length = 5

sketch22 = body.newObject("Sketcher::SketchObject", "Sketch021")
sketch22.AttachmentSupport = (doc.getObject("XY_Plane"), [""])
sketch22.MapMode = "FlatFace"
sketch22.addGeometry(Part.Circle(V(79.8, 73, 0), V(0, 0, 1), 2), False)
sketch22.addConstraint(Sketcher.Constraint("Diameter", 0, Q("4 mm")))
sketch22.addConstraint(Sketcher.Constraint("DistanceY", -1, 1, 0, 3, Q("73 mm")))
sketch22.addConstraint(Sketcher.Constraint("DistanceX", -1, 1, 0, 3, Q("79.8 mm")))
pocket19 = body.newObject("PartDesign::Pocket", "Pocket018")
pocket19.Profile = sketch22
pocket19.Length = 5
pocket19.Reversed = True

sketch23 = body.newObject("Sketcher::SketchObject", "Sketch022")
sketch23.AttachmentSupport = (doc.getObject("XY_Plane"), [""])
sketch23.MapMode = "FlatFace"
sketch23.addGeometry(Part.Circle(V(79.8, 73, 0), V(0, 0, 1), 4), False)
sketch23.addGeometry(Part.Circle(V(79.8, 73, 0), V(0, 0, 1), 2), False)
sketch23.addConstraint(Sketcher.Constraint("Coincident", 1, 3, 0, 3))
sketch23.addConstraint(Sketcher.Constraint("Diameter", 0, Q("8 mm")))
sketch23.addConstraint(Sketcher.Constraint("Diameter", 1, Q("4 mm")))
sketch23.addConstraint(Sketcher.Constraint("DistanceY", -1, 1, 0, 3, Q("73 mm")))
sketch23.addConstraint(Sketcher.Constraint("DistanceX", -1, 1, 0, 3, Q("79.8 mm")))
pad4 = body.newObject("PartDesign::Pad", "Pad003")
pad4.Profile = sketch23
pad4.Length = 5

sketch24 = body.newObject("Sketcher::SketchObject", "Sketch023")
sketch24.AttachmentSupport = (doc.getObject("XY_Plane"), [""])
sketch24.MapMode = "FlatFace"
sketch24.addGeometry(Part.Circle(V(-83, 38, 0), V(0, 0, 1), 2), False)
sketch24.addConstraint(Sketcher.Constraint("Diameter", 0, Q("4 mm")))
sketch24.addConstraint(Sketcher.Constraint("DistanceY", -1, 1, 0, 3, Q("38 mm")))
sketch24.addConstraint(Sketcher.Constraint("DistanceX", 0, 3, -1, 1, Q("82.999989 mm")))
pocket20 = body.newObject("PartDesign::Pocket", "Pocket019")
pocket20.Profile = sketch24
pocket20.Length = 5
pocket20.Reversed = True

sketch25 = body.newObject("Sketcher::SketchObject", "Sketch024")
sketch25.AttachmentSupport = (doc.getObject("XY_Plane"), [""])
sketch25.MapMode = "FlatFace"
add_polygon(sketch25, [(-120, 10), (-120, -20), (-125, -20), (-125, 10)])
add_polygon(sketch25, [(125, 4), (125, -16), (120, -16), (120, 4)])
sketch25.addConstraint(Sketcher.Constraint("Vertical", 0))
sketch25.addConstraint(Sketcher.Constraint("Horizontal", 1))
sketch25.addConstraint(Sketcher.Constraint("Vertical", 2))
sketch25.addConstraint(Sketcher.Constraint("Horizontal", 3))
sketch25.addConstraint(Sketcher.Constraint("Vertical", 4))
sketch25.addConstraint(Sketcher.Constraint("Horizontal", 5))
sketch25.addConstraint(Sketcher.Constraint("Vertical", 6))
sketch25.addConstraint(Sketcher.Constraint("Horizontal", 7))
sketch25.addConstraint(Sketcher.Constraint("Equal", 3, 5))
sketch25.addConstraint(Sketcher.Constraint("DistanceX", 1, 2, 1, 1, Q("5 mm")))
sketch25.addConstraint(Sketcher.Constraint("DistanceY", 0, 2, 0, 1, Q("30 mm")))
sketch25.addConstraint(Sketcher.Constraint("DistanceY", 4, 2, 4, 1, Q("20 mm")))
sketch25.addConstraint(Sketcher.Constraint("DistanceX", 0, 2, -1, 1, Q("120 mm")))
sketch25.addConstraint(Sketcher.Constraint("DistanceX", -1, 1, 4, 2, Q("125 mm")))
sketch25.addConstraint(Sketcher.Constraint("DistanceY", 0, 2, 4, 2, Q("3 mm")))
sketch25.addConstraint(Sketcher.Constraint("DistanceY", 0, 2, -1, 1, Q("19.5 mm")))
pad5 = body.newObject("PartDesign::Pad", "Pad004")
pad5.Profile = sketch25
pad5.Length = 5

sketch26 = body.newObject("Sketcher::SketchObject", "Sketch025")
sketch26.AttachmentSupport = (doc.getObject("XY_Plane"), [""])
sketch26.MapMode = "FlatFace"
sketch26.addGeometry(Part.Circle(V(-114, -48, 0), V(0, 0, 1), 2.2), False)
sketch26.addGeometry(Part.Circle(V(-70, -48, 0), V(0, 0, 1), 2.2), False)
sketch26.addConstraint(Sketcher.Constraint("Equal", 0, 1))
sketch26.addConstraint(Sketcher.Constraint("Horizontal", 0, 3, 1, 3))
sketch26.addConstraint(Sketcher.Constraint("Diameter", 0, Q("4.5 mm")))
sketch26.addConstraint(Sketcher.Constraint("DistanceY", 0, 3, -1, 1, Q("48 mm")))
sketch26.addConstraint(Sketcher.Constraint("DistanceX", 0, 3, 1, 3, Q("44 mm")))
sketch26.addConstraint(Sketcher.Constraint("DistanceX", 0, 3, -1, 1, Q("113.98 mm")))
pocket21 = body.newObject("PartDesign::Pocket", "Pocket020")
pocket21.Profile = sketch26
pocket21.Length = 5
pocket21.Reversed = True

sketch27 = body.newObject("Sketcher::SketchObject", "Sketch026")
sketch27.AttachmentSupport = (doc.getObject("XY_Plane"), [""])
sketch27.MapMode = "FlatFace"
add_polygon(sketch27, [(117, 14.6), (120, 14.6), (120, 10.2), (117, 10.2), (117, 8.7), (113.7, 8.7), (113.7, 10.2), (109.7, 10.2), (109.7, 14.6), (113.7, 14.6), (113.7, 16.1), (117, 16.1)])
add_polygon(sketch27, [(-111.7, -24.4), (-100, -24.4), (-100, -28.8), (-111.7, -28.8), (-111.7, -30.3), (-115, -30.3), (-115, -28.8), (-120, -28.8), (-120, -24.4), (-115, -24.4), (-115, -22.9), (-111.7, -22.9)])
sketch27.addConstraint(Sketcher.Constraint("Horizontal", 0))
sketch27.addConstraint(Sketcher.Constraint("Vertical", 1))
sketch27.addConstraint(Sketcher.Constraint("Horizontal", 2))
sketch27.addConstraint(Sketcher.Constraint("Vertical", 3))
sketch27.addConstraint(Sketcher.Constraint("Horizontal", 4))
sketch27.addConstraint(Sketcher.Constraint("Vertical", 5))
sketch27.addConstraint(Sketcher.Constraint("Horizontal", 6))
sketch27.addConstraint(Sketcher.Constraint("Vertical", 7))
sketch27.addConstraint(Sketcher.Constraint("Horizontal", 8))
sketch27.addConstraint(Sketcher.Constraint("Vertical", 9))
sketch27.addConstraint(Sketcher.Constraint("Horizontal", 10))
sketch27.addConstraint(Sketcher.Constraint("Vertical", 11))
sketch27.addConstraint(Sketcher.Constraint("Horizontal", 12))
sketch27.addConstraint(Sketcher.Constraint("Vertical", 13))
sketch27.addConstraint(Sketcher.Constraint("Horizontal", 14))
sketch27.addConstraint(Sketcher.Constraint("Vertical", 15))
sketch27.addConstraint(Sketcher.Constraint("Horizontal", 16))
sketch27.addConstraint(Sketcher.Constraint("Vertical", 17))
sketch27.addConstraint(Sketcher.Constraint("Horizontal", 18))
sketch27.addConstraint(Sketcher.Constraint("Vertical", 19))
sketch27.addConstraint(Sketcher.Constraint("Horizontal", 20))
sketch27.addConstraint(Sketcher.Constraint("Vertical", 21))
sketch27.addConstraint(Sketcher.Constraint("Horizontal", 22))
sketch27.addConstraint(Sketcher.Constraint("Vertical", 23))
sketch27.addConstraint(Sketcher.Constraint("Horizontal", 2, 2, 5, 2))
sketch27.addConstraint(Sketcher.Constraint("Horizontal", 0, 2, 7, 2))
sketch27.addConstraint(Sketcher.Constraint("Horizontal", 14, 2, 17, 2))
sketch27.addConstraint(Sketcher.Constraint("Horizontal", 12, 2, 19, 2))
sketch27.addConstraint(Sketcher.Constraint("Vertical", 5, 2, 8, 2))
sketch27.addConstraint(Sketcher.Constraint("Vertical", 3, 2, 10, 2))
sketch27.addConstraint(Sketcher.Constraint("Vertical", 17, 2, 20, 2))
sketch27.addConstraint(Sketcher.Constraint("Vertical", 15, 2, 22, 2))
sketch27.addConstraint(Sketcher.Constraint("Equal", 10, 16))
sketch27.addConstraint(Sketcher.Constraint("Equal", 5, 9))
sketch27.addConstraint(Sketcher.Constraint("Equal", 7, 13))
sketch27.addConstraint(Sketcher.Constraint("Equal", 11, 15))
sketch27.addConstraint(Sketcher.Constraint("Equal", 17, 21))
sketch27.addConstraint(Sketcher.Constraint("DistanceX", 0, 1, 0, 2, Q("3 mm")))
sketch27.addConstraint(Sketcher.Constraint("DistanceX", 18, 2, 18, 1, Q("5 mm")))
sketch27.addConstraint(Sketcher.Constraint("DistanceX", 4, 2, 4, 1, Q("3.3 mm")))
sketch27.addConstraint(Sketcher.Constraint("DistanceX", 12, 1, 12, 2, Q("11.7 mm")))
sketch27.addConstraint(Sketcher.Constraint("DistanceY", 1, 2, 1, 1, Q("4.4 mm")))
sketch27.addConstraint(Sketcher.Constraint("DistanceY", 3, 2, 3, 1, Q("1.5 mm")))
sketch27.addConstraint(Sketcher.Constraint("DistanceX", -1, 1, 0, 2, Q("120 mm")))
sketch27.addConstraint(Sketcher.Constraint("DistanceX", 12, 2, -1, 1, Q("100 mm")))
sketch27.addConstraint(Sketcher.Constraint("DistanceX", 6, 2, 6, 1, Q("3.994882 mm")))
sketch27.addConstraint(Sketcher.Constraint("DistanceY", -1, 1, 0, 2, Q("14.605612 mm")))
sketch27.addConstraint(Sketcher.Constraint("DistanceY", 12, 2, 6, 2, Q("34.58413 mm")))
pocket22 = body.newObject("PartDesign::Pocket", "Pocket021")
pocket22.Profile = sketch27
pocket22.Length = 5
pocket22.Reversed = True

sketch28 = body.newObject("Sketcher::SketchObject", "Sketch027")
sketch28.AttachmentSupport = (doc.getObject("XY_Plane"), [""])
sketch28.MapMode = "FlatFace"
sketch28.addGeometry(Part.Circle(V(22.5, 65.3, 0), V(0, 0, 1), 2), False)
sketch28.addConstraint(Sketcher.Constraint("Diameter", 0, Q("4 mm")))
sketch28.addConstraint(Sketcher.Constraint("DistanceX", -1, 1, 0, 3, Q("22.5 mm")))
sketch28.addConstraint(Sketcher.Constraint("DistanceY", -1, 1, 0, 3, Q("65.3 mm")))
pocket23 = body.newObject("PartDesign::Pocket", "Pocket022")
pocket23.Profile = sketch28
pocket23.Length = 5
pocket23.Reversed = True

doc.recompute()
